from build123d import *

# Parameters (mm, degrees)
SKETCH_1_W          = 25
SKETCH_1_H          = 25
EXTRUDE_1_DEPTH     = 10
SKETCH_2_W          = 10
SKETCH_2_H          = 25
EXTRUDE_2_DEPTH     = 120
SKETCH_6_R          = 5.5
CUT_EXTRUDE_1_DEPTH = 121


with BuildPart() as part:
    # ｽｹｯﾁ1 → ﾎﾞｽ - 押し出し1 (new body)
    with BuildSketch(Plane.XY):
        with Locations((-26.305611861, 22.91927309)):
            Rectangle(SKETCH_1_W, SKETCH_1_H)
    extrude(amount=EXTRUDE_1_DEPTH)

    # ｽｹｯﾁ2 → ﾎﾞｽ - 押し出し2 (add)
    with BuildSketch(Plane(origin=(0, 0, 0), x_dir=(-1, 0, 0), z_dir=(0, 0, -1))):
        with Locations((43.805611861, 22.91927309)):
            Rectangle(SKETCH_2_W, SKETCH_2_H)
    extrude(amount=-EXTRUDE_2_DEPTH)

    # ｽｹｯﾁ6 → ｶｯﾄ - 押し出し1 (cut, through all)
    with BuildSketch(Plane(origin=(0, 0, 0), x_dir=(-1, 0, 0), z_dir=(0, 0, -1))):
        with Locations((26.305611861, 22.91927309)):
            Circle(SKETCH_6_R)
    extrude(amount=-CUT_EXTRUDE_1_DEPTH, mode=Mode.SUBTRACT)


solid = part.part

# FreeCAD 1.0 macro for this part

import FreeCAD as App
import Part
import Sketcher

V = App.Vector
Q = App.Units.Quantity

doc = App.newDocument("Part")
body = doc.addObject("PartDesign::Body", "Body")

sketch1 = body.newObject("Sketcher::SketchObject", "Sketch")
sketch1.AttachmentSupport = (doc.getObject("XY_Plane"), [""])
sketch1.MapMode = "FlatFace"
sketch1.addGeometry(Part.LineSegment(V(-39, 35, 0), V(-39, 10, 0)), False)
sketch1.addGeometry(Part.LineSegment(V(-39, 10, 0), V(-14, 10, 0)), False)
sketch1.addGeometry(Part.LineSegment(V(-14, 10, 0), V(-14, 35, 0)), False)
sketch1.addGeometry(Part.LineSegment(V(-14, 35, 0), V(-39, 35, 0)), False)
sketch1.addConstraint(Sketcher.Constraint("Coincident", 0, 2, 1, 1))
sketch1.addConstraint(Sketcher.Constraint("Coincident", 1, 2, 2, 1))
sketch1.addConstraint(Sketcher.Constraint("Coincident", 2, 2, 3, 1))
sketch1.addConstraint(Sketcher.Constraint("Coincident", 3, 2, 0, 1))
sketch1.addConstraint(Sketcher.Constraint("Vertical", 0))
sketch1.addConstraint(Sketcher.Constraint("Horizontal", 1))
sketch1.addConstraint(Sketcher.Constraint("Vertical", 2))
sketch1.addConstraint(Sketcher.Constraint("Horizontal", 3))
sketch1.addConstraint(Sketcher.Constraint("Equal", 3, 0))
sketch1.addConstraint(Sketcher.Constraint("DistanceX", 1, 1, 1, 2, Q("25 mm")))
sketch1.addConstraint(Sketcher.Constraint("DistanceX", 0, 2, -1, 1, Q("38.805612 mm")))
sketch1.addConstraint(Sketcher.Constraint("DistanceY", -1, 1, 0, 2, Q("10.419273 mm")))
pad1 = body.newObject("PartDesign::Pad", "Pad")
pad1.Profile = sketch1
pad1.Length = 10

sketch2 = body.newObject("Sketcher::SketchObject", "Sketch001")
sketch2.AttachmentSupport = (doc.getObject("XY_Plane"), [""])
sketch2.MapMode = "FlatFace"
sketch2.addGeometry(Part.LineSegment(V(-39, 35, 0), V(-39, 10, 0)), False)
sketch2.addGeometry(Part.LineSegment(V(-39, 10, 0), V(-49, 10, 0)), False)
sketch2.addGeometry(Part.LineSegment(V(-49, 10, 0), V(-49, 35, 0)), False)
sketch2.addGeometry(Part.LineSegment(V(-49, 35, 0), V(-39, 35, 0)), False)
sketch2.addConstraint(Sketcher.Constraint("Coincident", 0, 2, 1, 1))
sketch2.addConstraint(Sketcher.Constraint("Coincident", 1, 2, 2, 1))
sketch2.addConstraint(Sketcher.Constraint("Coincident", 2, 2, 3, 1))
sketch2.addConstraint(Sketcher.Constraint("Coincident", 3, 2, 0, 1))
sketch2.addConstraint(Sketcher.Constraint("Vertical", 0))
sketch2.addConstraint(Sketcher.Constraint("Horizontal", 1))
sketch2.addConstraint(Sketcher.Constraint("Vertical", 2))
sketch2.addConstraint(Sketcher.Constraint("Horizontal", 3))
sketch2.addConstraint(Sketcher.Constraint("DistanceX", 1, 2, 1, 1, Q("10 mm")))
sketch2.addConstraint(Sketcher.Constraint("DistanceY", 0, 2, 0, 1, Q("25 mm")))
sketch2.addConstraint(Sketcher.Constraint("DistanceX", 0, 2, -1, 1, Q("38.805612 mm")))
sketch2.addConstraint(Sketcher.Constraint("DistanceY", -1, 1, 0, 2, Q("10.419273 mm")))
pad2 = body.newObject("PartDesign::Pad", "Pad001")
pad2.Profile = sketch2
pad2.Length = 120

sketch3 = body.newObject("Sketcher::SketchObject", "Sketch002")
sketch3.AttachmentSupport = (doc.getObject("XY_Plane"), [""])
sketch3.MapMode = "FlatFace"
sketch3.addGeometry(Part.Circle(V(-26, 23, 0), V(0, 0, 1), 6), False)
sketch3.addConstraint(Sketcher.Constraint("Diameter", 0, Q("11 mm")))
sketch3.addConstraint(Sketcher.Constraint("DistanceX", 0, 3, -1, 1, Q("26.305612 mm")))
sketch3.addConstraint(Sketcher.Constraint("DistanceY", -1, 1, 0, 3, Q("22.919273 mm")))
pocket1 = body.newObject("PartDesign::Pocket", "Pocket")
pocket1.Profile = sketch3
pocket1.Type = "ThroughAll"
pocket1.Reversed = True

doc.recompute()
